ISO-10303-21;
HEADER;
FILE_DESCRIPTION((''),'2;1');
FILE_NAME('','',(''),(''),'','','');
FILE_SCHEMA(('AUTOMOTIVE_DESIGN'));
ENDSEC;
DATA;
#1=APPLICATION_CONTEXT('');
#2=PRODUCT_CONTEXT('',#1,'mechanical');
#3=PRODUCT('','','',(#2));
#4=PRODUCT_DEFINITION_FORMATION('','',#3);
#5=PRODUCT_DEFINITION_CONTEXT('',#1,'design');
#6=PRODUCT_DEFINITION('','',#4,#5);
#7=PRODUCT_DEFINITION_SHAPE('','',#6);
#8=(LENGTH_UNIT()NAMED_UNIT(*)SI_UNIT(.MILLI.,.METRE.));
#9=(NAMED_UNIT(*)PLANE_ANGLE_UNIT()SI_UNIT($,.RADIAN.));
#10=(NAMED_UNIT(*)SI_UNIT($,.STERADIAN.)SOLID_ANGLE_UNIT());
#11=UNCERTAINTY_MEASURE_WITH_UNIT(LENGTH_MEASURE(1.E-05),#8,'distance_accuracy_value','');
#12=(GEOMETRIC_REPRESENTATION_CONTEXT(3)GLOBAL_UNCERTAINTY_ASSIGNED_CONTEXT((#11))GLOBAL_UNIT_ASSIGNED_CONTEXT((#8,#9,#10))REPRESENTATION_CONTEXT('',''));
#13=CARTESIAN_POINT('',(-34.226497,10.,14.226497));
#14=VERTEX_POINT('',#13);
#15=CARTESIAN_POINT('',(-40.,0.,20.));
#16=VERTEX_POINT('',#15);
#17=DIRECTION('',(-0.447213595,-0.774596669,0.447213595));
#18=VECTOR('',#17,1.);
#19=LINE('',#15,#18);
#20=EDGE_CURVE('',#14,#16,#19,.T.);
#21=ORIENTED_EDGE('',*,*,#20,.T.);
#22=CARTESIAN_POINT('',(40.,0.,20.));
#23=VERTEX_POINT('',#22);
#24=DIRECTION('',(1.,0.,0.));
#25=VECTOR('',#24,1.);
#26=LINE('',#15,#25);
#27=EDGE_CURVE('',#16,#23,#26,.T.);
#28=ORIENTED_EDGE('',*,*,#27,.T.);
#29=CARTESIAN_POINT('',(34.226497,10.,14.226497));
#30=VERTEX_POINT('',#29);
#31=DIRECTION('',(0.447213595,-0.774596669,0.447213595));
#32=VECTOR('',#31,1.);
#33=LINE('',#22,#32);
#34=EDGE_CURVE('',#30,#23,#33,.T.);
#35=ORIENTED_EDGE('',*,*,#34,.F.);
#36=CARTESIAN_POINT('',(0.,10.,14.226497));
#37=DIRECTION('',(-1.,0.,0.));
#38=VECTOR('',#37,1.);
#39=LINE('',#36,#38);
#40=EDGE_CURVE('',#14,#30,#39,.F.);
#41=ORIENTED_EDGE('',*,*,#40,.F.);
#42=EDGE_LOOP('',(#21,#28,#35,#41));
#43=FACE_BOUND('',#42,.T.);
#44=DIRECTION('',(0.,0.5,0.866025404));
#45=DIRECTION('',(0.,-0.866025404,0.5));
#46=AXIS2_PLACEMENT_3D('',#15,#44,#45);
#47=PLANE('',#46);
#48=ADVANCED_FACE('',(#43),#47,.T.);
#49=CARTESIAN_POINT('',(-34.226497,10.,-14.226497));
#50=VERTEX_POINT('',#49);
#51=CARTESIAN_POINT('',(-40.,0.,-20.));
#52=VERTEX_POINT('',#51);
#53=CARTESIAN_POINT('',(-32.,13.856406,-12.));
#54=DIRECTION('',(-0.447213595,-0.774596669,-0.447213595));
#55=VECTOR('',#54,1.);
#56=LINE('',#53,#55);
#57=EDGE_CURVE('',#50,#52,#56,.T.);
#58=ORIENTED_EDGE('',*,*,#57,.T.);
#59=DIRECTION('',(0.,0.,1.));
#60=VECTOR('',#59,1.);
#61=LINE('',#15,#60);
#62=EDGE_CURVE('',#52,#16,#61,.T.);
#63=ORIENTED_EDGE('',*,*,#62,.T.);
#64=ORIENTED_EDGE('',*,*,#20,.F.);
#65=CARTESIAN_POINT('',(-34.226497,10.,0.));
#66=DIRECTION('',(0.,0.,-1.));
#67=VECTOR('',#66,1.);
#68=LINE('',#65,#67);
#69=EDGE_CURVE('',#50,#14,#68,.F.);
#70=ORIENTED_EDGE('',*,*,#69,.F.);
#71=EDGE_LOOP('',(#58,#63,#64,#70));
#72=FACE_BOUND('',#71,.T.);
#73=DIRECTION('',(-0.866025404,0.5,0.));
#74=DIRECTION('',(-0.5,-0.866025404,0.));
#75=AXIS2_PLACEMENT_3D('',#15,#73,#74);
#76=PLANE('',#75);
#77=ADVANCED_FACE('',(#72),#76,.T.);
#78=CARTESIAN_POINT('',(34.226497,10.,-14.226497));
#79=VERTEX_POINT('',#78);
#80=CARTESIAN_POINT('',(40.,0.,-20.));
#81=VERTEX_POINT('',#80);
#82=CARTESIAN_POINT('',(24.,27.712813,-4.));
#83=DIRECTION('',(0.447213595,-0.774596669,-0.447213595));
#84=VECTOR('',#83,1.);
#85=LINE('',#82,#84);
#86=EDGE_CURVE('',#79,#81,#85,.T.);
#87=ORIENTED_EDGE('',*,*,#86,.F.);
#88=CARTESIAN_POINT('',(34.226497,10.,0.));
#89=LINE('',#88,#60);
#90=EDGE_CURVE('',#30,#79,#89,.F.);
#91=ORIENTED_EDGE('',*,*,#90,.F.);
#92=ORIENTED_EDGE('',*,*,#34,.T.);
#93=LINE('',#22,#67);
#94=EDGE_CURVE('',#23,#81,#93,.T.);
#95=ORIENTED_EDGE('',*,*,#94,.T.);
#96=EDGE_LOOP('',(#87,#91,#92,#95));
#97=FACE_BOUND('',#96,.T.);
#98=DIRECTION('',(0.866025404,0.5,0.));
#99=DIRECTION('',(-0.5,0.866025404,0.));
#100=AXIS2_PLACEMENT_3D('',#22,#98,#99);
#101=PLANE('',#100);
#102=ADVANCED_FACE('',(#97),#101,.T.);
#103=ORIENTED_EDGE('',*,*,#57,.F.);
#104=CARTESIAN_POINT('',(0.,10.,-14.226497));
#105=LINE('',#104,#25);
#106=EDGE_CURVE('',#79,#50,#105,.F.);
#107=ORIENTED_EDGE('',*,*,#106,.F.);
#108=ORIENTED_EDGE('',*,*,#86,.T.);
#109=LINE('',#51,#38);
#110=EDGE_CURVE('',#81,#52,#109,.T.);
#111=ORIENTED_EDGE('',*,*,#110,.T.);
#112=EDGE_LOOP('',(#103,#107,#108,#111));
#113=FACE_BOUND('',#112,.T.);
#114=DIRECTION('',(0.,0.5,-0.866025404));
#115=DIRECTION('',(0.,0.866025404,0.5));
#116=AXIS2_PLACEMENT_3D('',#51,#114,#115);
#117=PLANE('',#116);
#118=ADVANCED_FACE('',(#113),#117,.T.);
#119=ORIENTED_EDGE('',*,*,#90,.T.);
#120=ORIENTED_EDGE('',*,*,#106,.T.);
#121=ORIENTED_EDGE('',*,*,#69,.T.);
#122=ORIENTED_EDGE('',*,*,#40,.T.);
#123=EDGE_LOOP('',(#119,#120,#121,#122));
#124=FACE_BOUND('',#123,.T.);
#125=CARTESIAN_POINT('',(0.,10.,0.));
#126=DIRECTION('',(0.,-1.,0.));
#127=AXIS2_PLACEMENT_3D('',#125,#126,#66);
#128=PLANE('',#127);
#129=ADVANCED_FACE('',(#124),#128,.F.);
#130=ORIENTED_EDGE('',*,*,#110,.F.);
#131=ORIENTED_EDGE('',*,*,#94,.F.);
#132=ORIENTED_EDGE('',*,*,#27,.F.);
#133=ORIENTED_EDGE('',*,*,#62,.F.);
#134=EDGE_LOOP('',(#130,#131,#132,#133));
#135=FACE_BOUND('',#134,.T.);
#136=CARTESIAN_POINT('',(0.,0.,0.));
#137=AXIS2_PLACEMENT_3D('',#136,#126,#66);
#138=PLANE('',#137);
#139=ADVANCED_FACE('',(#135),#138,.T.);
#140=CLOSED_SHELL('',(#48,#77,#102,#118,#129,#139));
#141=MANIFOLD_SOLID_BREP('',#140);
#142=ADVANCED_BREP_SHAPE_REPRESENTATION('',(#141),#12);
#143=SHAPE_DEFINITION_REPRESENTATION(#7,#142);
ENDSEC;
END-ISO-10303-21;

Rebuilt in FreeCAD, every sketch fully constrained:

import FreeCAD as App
import Part
import Sketcher
Q = App.Units.Quantity


def add_polygon(sketch, points):
    """Adds a closed chain of lines whose ends are joined by coincident constraints."""
    first, n = sketch.GeometryCount, len(points)
    for a, b in zip(points, points[1:] + points[:1]):
        sketch.addGeometry(Part.LineSegment(App.Vector(*a, 0), App.Vector(*b, 0)), False)
    for i in range(n):
        sketch.addConstraint(Sketcher.Constraint("Coincident", first + i, 2, first + (i + 1) % n, 1))

doc = App.newDocument("Part")
body = doc.addObject("PartDesign::Body", "Body")

sketch1 = body.newObject("Sketcher::SketchObject", "Sketch")
sketch1.AttachmentSupport = (doc.getObject("XZ_Plane"), [""])
sketch1.MapMode = "FlatFace"
add_polygon(sketch1, [(-40, -20), (-40, 20), (40, 20), (40, -20)])
sketch1.addConstraint(Sketcher.Constraint("Vertical", 0))
sketch1.addConstraint(Sketcher.Constraint("Horizontal", 1))
sketch1.addConstraint(Sketcher.Constraint("Vertical", 2))
sketch1.addConstraint(Sketcher.Constraint("Horizontal", 3))
sketch1.addConstraint(Sketcher.Constraint("Symmetric", 0, 2, 2, 2, -1, 1))
sketch1.addConstraint(Sketcher.Constraint("DistanceX", 1, 1, 1, 2, Q("80 mm")))
sketch1.addConstraint(Sketcher.Constraint("DistanceY", 0, 1, 0, 2, Q("40 mm")))
pad1 = body.newObject("PartDesign::Pad", "Pad")
pad1.Profile = sketch1
pad1.Length = 10
pad1.Reversed = True
pad1.TaperAngle = -30

doc.recompute()
